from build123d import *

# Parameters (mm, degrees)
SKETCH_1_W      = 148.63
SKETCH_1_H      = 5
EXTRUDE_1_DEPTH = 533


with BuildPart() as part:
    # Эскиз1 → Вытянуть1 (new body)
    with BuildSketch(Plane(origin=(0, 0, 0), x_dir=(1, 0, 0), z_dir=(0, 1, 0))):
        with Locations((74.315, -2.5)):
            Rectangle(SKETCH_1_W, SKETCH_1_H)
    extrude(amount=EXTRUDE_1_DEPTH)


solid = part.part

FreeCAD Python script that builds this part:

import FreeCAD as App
import Part
import Sketcher


def add_polygon(sketch, points):
    """Adds a closed chain of lines whose ends are joined by coincident constraints."""
    first, n = sketch.GeometryCount, len(points)
    for a, b in zip(points, points[1:] + points[:1]):
        sketch.addGeometry(Part.LineSegment(App.Vector(*a, 0), App.Vector(*b, 0)), False)
    for i in range(n):
        sketch.addConstraint(Sketcher.Constraint("Coincident", first + i, 2, first + (i + 1) % n, 1))

doc = App.newDocument("Part")
params = doc.addObject("Spreadsheet::Sheet", "Params")
for row, (alias, value) in enumerate([
    ("sketch1_height", "5 mm"),
    ("sketch1_width", "148.63 mm"),
    ("pad1_length", "533 mm"),
], start=1):
    params.set(f"A{row}", alias)
    params.set(f"B{row}", "=" + value)
    params.setAlias(f"B{row}", alias)

body = doc.addObject("PartDesign::Body", "Body")

sketch1 = body.newObject("Sketcher::SketchObject", "Sketch")
sketch1.AttachmentSupport = (doc.getObject("XZ_Plane"), [""])
sketch1.MapMode = "FlatFace"
add_polygon(sketch1, [(0, 0), (0, 5), (149, 5), (149, 0)])
sketch1.addConstraint(Sketcher.Constraint("Vertical", 0))
sketch1.addConstraint(Sketcher.Constraint("Horizontal", 1))
sketch1.addConstraint(Sketcher.Constraint("Vertical", 2))
sketch1.addConstraint(Sketcher.Constraint("Horizontal", 3))
sketch1.addConstraint(Sketcher.Constraint("Coincident", 3, 2, -1, 1))
sketch1.addConstraint(Sketcher.Constraint("DistanceY", 0, 1, 0, 2, 5.0))
sketch1.addConstraint(Sketcher.Constraint("DistanceX", 1, 1, 1, 2, 148.63))
sketch1.setExpression("Constraints[9]", "Params.sketch1_height")
sketch1.setExpression("Constraints[10]", "Params.sketch1_width")
pad1 = body.newObject("PartDesign::Pad", "Pad")
pad1.Profile = sketch1
pad1.setExpression("Length", "Params.pad1_length")
pad1.Reversed = True

doc.recompute()
